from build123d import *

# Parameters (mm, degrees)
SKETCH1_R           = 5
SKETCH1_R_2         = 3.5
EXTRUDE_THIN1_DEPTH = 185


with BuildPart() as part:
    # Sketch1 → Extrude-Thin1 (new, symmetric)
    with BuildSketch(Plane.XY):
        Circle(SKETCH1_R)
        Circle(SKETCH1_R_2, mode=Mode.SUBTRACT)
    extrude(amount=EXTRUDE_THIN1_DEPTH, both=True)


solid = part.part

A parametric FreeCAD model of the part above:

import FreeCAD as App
import Part
import Sketcher
from FreeCAD import Vector

doc = App.newDocument("Part")
params = doc.addObject("Spreadsheet::Sheet", "Params")
for row, (alias, value) in enumerate([
    ("sketch1_diameter", "10 mm"),
    ("sketch1_diameter2", "7 mm"),
    ("pad1_length", "370 mm"),
], start=1):
    params.set(f"A{row}", alias)
    params.set(f"B{row}", "=" + value)
    params.setAlias(f"B{row}", alias)

body = doc.addObject("PartDesign::Body", "Body")

sketch1 = body.newObject("Sketcher::SketchObject", "Sketch")
sketch1.AttachmentSupport = (doc.getObject("XY_Plane"), [""])
sketch1.MapMode = "FlatFace"
sketch1.addGeometry([
    Part.Circle(Vector(0, 0, 0), Vector(0, 0, 1), 5),
    Part.Circle(Vector(0, 0, 0), Vector(0, 0, 1), 3.5),
], False)
sketch1.addConstraint([
    Sketcher.Constraint("Coincident", 0, 3, -1, 1),
    Sketcher.Constraint("Coincident", 1, 3, -1, 1),
    Sketcher.Constraint("Diameter", 0, 10.0),
    Sketcher.Constraint("Diameter", 1, 7.0),
])
sketch1.setExpression("Constraints[2]", "Params.sketch1_diameter")
sketch1.setExpression("Constraints[3]", "Params.sketch1_diameter2")
pad1 = body.newObject("PartDesign::Pad", "Pad")
pad1.Profile = sketch1
pad1.setExpression("Length", "Params.pad1_length")
pad1.Midplane = True

doc.recompute()
